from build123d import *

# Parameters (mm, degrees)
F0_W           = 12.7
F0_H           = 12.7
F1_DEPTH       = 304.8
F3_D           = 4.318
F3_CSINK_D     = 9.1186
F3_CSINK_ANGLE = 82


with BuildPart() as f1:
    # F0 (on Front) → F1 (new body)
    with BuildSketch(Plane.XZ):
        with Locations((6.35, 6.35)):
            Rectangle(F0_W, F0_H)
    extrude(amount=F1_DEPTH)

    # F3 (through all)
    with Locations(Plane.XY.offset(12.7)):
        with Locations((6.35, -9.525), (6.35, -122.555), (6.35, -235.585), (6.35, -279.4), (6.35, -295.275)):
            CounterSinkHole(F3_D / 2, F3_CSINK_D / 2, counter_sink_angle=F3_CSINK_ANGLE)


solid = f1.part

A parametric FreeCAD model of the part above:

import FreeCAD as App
import Part
import Sketcher
from FreeCAD import Vector
Q = App.Units.Quantity


def add_polygon(sketch, points):
    """Adds a closed chain of lines whose ends are joined by coincident constraints."""
    first, n = sketch.GeometryCount, len(points)
    for a, b in zip(points, points[1:] + points[:1]):
        sketch.addGeometry(Part.LineSegment(App.Vector(*a, 0), App.Vector(*b, 0)), False)
    for i in range(n):
        sketch.addConstraint(Sketcher.Constraint("Coincident", first + i, 2, first + (i + 1) % n, 1))

doc = App.newDocument("Part")
body = doc.addObject("PartDesign::Body", "Body")

# Sketch on XZ plane
sketch1 = doc.addObject("Sketcher::SketchObject", "Sketch")
body.addObject(sketch1)
sketch1.AttachmentSupport = (doc.XZ_Plane, [""])
sketch1.MapMode = "FlatFace"
add_polygon(sketch1, [(0, 12.7), (0, 0), (12.7, 0), (12.7, 12.7)])  # lines 0-3
sketch1.addConstraint(Sketcher.Constraint("Vertical", 0))
sketch1.addConstraint(Sketcher.Constraint("Horizontal", 1))
sketch1.addConstraint(Sketcher.Constraint("Vertical", 2))
sketch1.addConstraint(Sketcher.Constraint("Horizontal", 3))
sketch1.addConstraint(Sketcher.Constraint("Coincident", 0, 2, -1, 1))
sketch1.addConstraint(Sketcher.Constraint("Equal", 3, 0))
sketch1.addConstraint(Sketcher.Constraint("DistanceX", 1, 1, 1, 2, Q("0.5 in")))
pad1 = doc.addObject("PartDesign::Pad", "Pad")
body.addObject(pad1)
pad1.Profile = sketch1
pad1.Length = Q("12 in")

# Sketch on XY plane
sketch2 = doc.addObject("Sketcher::SketchObject", "Sketch001")
body.addObject(sketch2)
sketch2.AttachmentSupport = (doc.XY_Plane, [""])
sketch2.MapMode = "FlatFace"
sketch2.AttachmentOffset = App.Placement(Vector(0, 0, 0.5 * 25.4), App.Rotation())
sketch2.addGeometry(Part.Circle(Vector(6.35, -9.525, 0), Vector(0, 0, 1), 2.159), False)
sketch2.addGeometry(Part.Circle(Vector(6.35, -122.555, 0), Vector(0, 0, 1), 2.159), False)
sketch2.addGeometry(Part.Circle(Vector(6.35, -235.585, 0), Vector(0, 0, 1), 2.159), False)
sketch2.addGeometry(Part.Circle(Vector(6.35, -279.4, 0), Vector(0, 0, 1), 2.159), False)
sketch2.addGeometry(Part.Circle(Vector(6.35, -295.275, 0), Vector(0, 0, 1), 2.159), False)
sketch2.addConstraint(Sketcher.Constraint("Equal", 0, 1))
sketch2.addConstraint(Sketcher.Constraint("Equal", 1, 2))
sketch2.addConstraint(Sketcher.Constraint("Equal", 2, 3))
sketch2.addConstraint(Sketcher.Constraint("Equal", 3, 4))
sketch2.addConstraint(Sketcher.Constraint("Vertical", 0, 3, 1, 3))
sketch2.addConstraint(Sketcher.Constraint("Vertical", 1, 3, 2, 3))
sketch2.addConstraint(Sketcher.Constraint("Vertical", 2, 3, 3, 3))
sketch2.addConstraint(Sketcher.Constraint("Vertical", 3, 3, 4, 3))
sketch2.addConstraint(Sketcher.Constraint("Diameter", 0, Q("0.17 in")))
sketch2.addConstraint(Sketcher.Constraint("DistanceY", 3, 3, -1, 1, Q("11 in")))
sketch2.addConstraint(Sketcher.Constraint("DistanceY", 2, 3, 0, 3, Q("8.9 in")))
sketch2.addConstraint(Sketcher.Constraint("DistanceY", 4, 3, 1, 3, Q("6.8 in")))
sketch2.addConstraint(Sketcher.Constraint("DistanceX", -1, 1, 0, 3, Q("0.25 in")))
sketch2.addConstraint(Sketcher.Constraint("DistanceY", 1, 3, 0, 3, Q("4.45 in")))
sketch2.addConstraint(Sketcher.Constraint("DistanceY", 0, 3, -1, 1, Q("0.375 in")))
doc.recompute()
hole = doc.addObject("PartDesign::Hole", "Hole")
body.addObject(hole)
hole.Profile = sketch2
hole.ThreadType = "None"
hole.Diameter = Q("0.17 in")
hole.DepthType = "ThroughAll"
hole.HoleCutType = "Countersink"
hole.HoleCutDiameter = Q("0.359 in")
hole.HoleCutCountersinkAngle = 82

doc.recompute()
